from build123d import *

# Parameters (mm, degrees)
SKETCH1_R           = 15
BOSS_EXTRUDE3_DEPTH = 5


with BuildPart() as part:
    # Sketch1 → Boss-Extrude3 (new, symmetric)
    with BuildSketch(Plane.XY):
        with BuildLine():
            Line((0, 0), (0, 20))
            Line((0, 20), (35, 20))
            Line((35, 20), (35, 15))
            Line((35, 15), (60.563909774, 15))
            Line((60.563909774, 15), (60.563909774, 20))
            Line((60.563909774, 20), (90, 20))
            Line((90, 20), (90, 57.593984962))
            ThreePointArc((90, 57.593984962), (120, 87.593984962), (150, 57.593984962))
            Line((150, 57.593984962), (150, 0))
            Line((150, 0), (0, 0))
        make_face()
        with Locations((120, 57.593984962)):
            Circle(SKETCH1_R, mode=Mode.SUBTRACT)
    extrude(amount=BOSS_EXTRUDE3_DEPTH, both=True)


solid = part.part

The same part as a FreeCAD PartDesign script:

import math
import FreeCAD as App
import Part
import Sketcher

doc = App.newDocument("Part")
body = doc.addObject("PartDesign::Body", "Body")

sketch1 = doc.addObject("Sketcher::SketchObject", "Sketch")
body.addObject(sketch1)
sketch1.AttachmentSupport = (doc.XY_Plane, [""])
sketch1.MapMode = "FlatFace"
sketch1.addGeometry([
    Part.LineSegment(App.Vector(0, 20, 0), App.Vector(0, 0, 0)),
    Part.LineSegment(App.Vector(0, 0, 0), App.Vector(150, 0, 0)),
    Part.LineSegment(App.Vector(150, 0, 0), App.Vector(150, 57.593985, 0)),
    Part.ArcOfCircle(Part.Circle(App.Vector(120, 57.593985, 0), App.Vector(0, 0, 1), 30), math.radians(0), math.radians(180)),
    Part.LineSegment(App.Vector(90, 57.593985, 0), App.Vector(90, 20, 0)),
    Part.LineSegment(App.Vector(90, 20, 0), App.Vector(60.56391, 20, 0)),
    Part.LineSegment(App.Vector(60.56391, 20, 0), App.Vector(60.56391, 15, 0)),
    Part.LineSegment(App.Vector(60.56391, 15, 0), App.Vector(35, 15, 0)),
    Part.LineSegment(App.Vector(35, 15, 0), App.Vector(35, 20, 0)),
    Part.LineSegment(App.Vector(35, 20, 0), App.Vector(0, 20, 0)),
    Part.Circle(App.Vector(120, 57.593985, 0), App.Vector(0, 0, 1), 15),
], False)
sketch1.addConstraint([
    Sketcher.Constraint("Coincident", 0, 2, 1, 1),
    Sketcher.Constraint("Coincident", 1, 2, 2, 1),
    Sketcher.Constraint("Tangent", 2, 2, 3, 1),
    Sketcher.Constraint("Tangent", 3, 2, 4, 1),
    Sketcher.Constraint("Coincident", 4, 2, 5, 1),
    Sketcher.Constraint("Coincident", 5, 2, 6, 1),
    Sketcher.Constraint("Coincident", 6, 2, 7, 1),
    Sketcher.Constraint("Coincident", 7, 2, 8, 1),
    Sketcher.Constraint("Coincident", 8, 2, 9, 1),
    Sketcher.Constraint("Coincident", 9, 2, 0, 1),
    Sketcher.Constraint("Vertical", 0),
    Sketcher.Constraint("Horizontal", 1),
    Sketcher.Constraint("Vertical", 2),
    Sketcher.Constraint("Vertical", 4),
    Sketcher.Constraint("Horizontal", 5),
    Sketcher.Constraint("Vertical", 6),
    Sketcher.Constraint("Horizontal", 7),
    Sketcher.Constraint("Vertical", 8),
    Sketcher.Constraint("Horizontal", 9),
    Sketcher.Constraint("Coincident", 0, 2, -1, 1),
    Sketcher.Constraint("Coincident", 10, 3, 3, 3),
    Sketcher.Constraint("Horizontal", 5, 2, 8, 2),
    Sketcher.Constraint("Diameter", 10, 30.0),
    Sketcher.Constraint("Radius", 3, 30.0),
    Sketcher.Constraint("DistanceX", 1, 1, 1, 2, 150.0),
    Sketcher.Constraint("DistanceX", 9, 2, 9, 1, 35.0),
    Sketcher.Constraint("DistanceY", 0, 2, 0, 1, 20.0),
    Sketcher.Constraint("DistanceY", 6, 2, 6, 1, 5.0),
    Sketcher.Constraint("DistanceX", 5, 2, 5, 1, 29.43609),
    Sketcher.Constraint("DistanceY", 2, 1, 2, 2, 57.593985),
])
pad1 = doc.addObject("PartDesign::Pad", "Pad")
body.addObject(pad1)
pad1.Profile = sketch1
pad1.Length = 10
pad1.Midplane = True

doc.recompute()
